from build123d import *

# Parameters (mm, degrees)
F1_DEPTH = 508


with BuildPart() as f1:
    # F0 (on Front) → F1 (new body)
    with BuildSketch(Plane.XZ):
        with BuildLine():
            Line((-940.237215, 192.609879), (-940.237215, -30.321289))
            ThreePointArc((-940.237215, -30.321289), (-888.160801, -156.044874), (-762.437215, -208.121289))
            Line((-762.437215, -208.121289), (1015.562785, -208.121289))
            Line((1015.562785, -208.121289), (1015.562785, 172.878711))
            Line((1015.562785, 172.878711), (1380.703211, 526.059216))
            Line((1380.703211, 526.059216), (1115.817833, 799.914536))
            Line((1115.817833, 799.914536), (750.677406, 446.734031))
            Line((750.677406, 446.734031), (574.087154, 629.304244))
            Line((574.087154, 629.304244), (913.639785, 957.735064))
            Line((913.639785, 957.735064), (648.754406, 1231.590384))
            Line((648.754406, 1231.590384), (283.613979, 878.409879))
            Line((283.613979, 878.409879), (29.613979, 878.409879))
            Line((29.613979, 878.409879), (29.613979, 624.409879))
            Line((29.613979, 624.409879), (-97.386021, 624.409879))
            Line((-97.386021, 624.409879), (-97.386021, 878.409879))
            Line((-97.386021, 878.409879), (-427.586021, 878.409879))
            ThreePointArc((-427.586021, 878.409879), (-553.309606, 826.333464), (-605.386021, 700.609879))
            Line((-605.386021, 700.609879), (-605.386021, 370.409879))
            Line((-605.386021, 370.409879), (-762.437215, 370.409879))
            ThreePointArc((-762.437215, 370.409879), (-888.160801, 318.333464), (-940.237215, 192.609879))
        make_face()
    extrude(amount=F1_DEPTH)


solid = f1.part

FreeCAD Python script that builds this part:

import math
import FreeCAD as App
import Part
import Sketcher
from FreeCAD import Vector
Q = App.Units.Quantity

doc = App.newDocument("Part")
body = doc.addObject("PartDesign::Body", "Body")

# Sketch on XZ plane
sketch1 = body.newObject("Sketcher::SketchObject", "Sketch")
sketch1.AttachmentSupport = (doc.getObject("XZ_Plane"), [""])
sketch1.MapMode = "FlatFace"
sketch1.addGeometry([
    Part.LineSegment(Vector(-940.237215, 192.609879, 0), Vector(-940.237215, -30.321289, 0)),  # 0
    Part.ArcOfCircle(Part.Circle(Vector(-762.437214, -30.321288, 0), Vector(0, 0, 1), 177.800001), math.radians(-180), math.radians(-90)),  # 1
    Part.LineSegment(Vector(-762.437215, -208.121289, 0), Vector(1015.562785, -208.121289, 0)),  # 2
    Part.LineSegment(Vector(1015.562785, -208.121289, 0), Vector(1015.562785, 172.878711, 0)),  # 3
    Part.LineSegment(Vector(1015.562785, 172.878711, 0), Vector(1380.703211, 526.059216, 0)),  # 4
    Part.LineSegment(Vector(1380.703211, 526.059216, 0), Vector(1115.817833, 799.914536, 0)),  # 5
    Part.LineSegment(Vector(1115.817833, 799.914536, 0), Vector(750.677406, 446.734031, 0)),  # 6
    Part.LineSegment(Vector(750.677406, 446.734031, 0), Vector(574.087154, 629.304244, 0)),  # 7
    Part.LineSegment(Vector(574.087154, 629.304244, 0), Vector(913.639785, 957.735064, 0)),  # 8
    Part.LineSegment(Vector(913.639785, 957.735064, 0), Vector(648.754406, 1231.590384, 0)),  # 9
    Part.LineSegment(Vector(648.754406, 1231.590384, 0), Vector(283.613979, 878.409879, 0)),  # 10
    Part.LineSegment(Vector(283.613979, 878.409879, 0), Vector(29.613979, 878.409879, 0)),  # 11
    Part.LineSegment(Vector(29.613979, 878.409879, 0), Vector(29.613979, 624.409879, 0)),  # 12
    Part.LineSegment(Vector(29.613979, 624.409879, 0), Vector(-97.386021, 624.409879, 0)),  # 13
    Part.LineSegment(Vector(-97.386021, 624.409879, 0), Vector(-97.386021, 878.409879, 0)),  # 14
    Part.LineSegment(Vector(-97.386021, 878.409879, 0), Vector(-427.586021, 878.409879, 0)),  # 15
    Part.ArcOfCircle(Part.Circle(Vector(-427.586019, 700.609877, 0), Vector(0, 0, 1), 177.800002), math.radians(90.000001), math.radians(179.999999)),  # 16
    Part.LineSegment(Vector(-605.386021, 700.609879, 0), Vector(-605.386021, 370.409879, 0)),  # 17
    Part.LineSegment(Vector(-605.386021, 370.409879, 0), Vector(-762.437215, 370.409879, 0)),  # 18
    Part.ArcOfCircle(Part.Circle(Vector(-762.437214, 192.609878, 0), Vector(0, 0, 1), 177.800001), math.radians(90), math.radians(180)),  # 19
], False)
sketch1.addConstraint([
    Sketcher.Constraint("Tangent", 0, 2, 1, 1),
    Sketcher.Constraint("Tangent", 1, 2, 2, 1),
    Sketcher.Constraint("Coincident", 2, 2, 3, 1),
    Sketcher.Constraint("Coincident", 3, 2, 4, 1),
    Sketcher.Constraint("Coincident", 4, 2, 5, 1),
    Sketcher.Constraint("Coincident", 5, 2, 6, 1),
    Sketcher.Constraint("Coincident", 6, 2, 7, 1),
    Sketcher.Constraint("Coincident", 7, 2, 8, 1),
    Sketcher.Constraint("Coincident", 8, 2, 9, 1),
    Sketcher.Constraint("Coincident", 9, 2, 10, 1),
    Sketcher.Constraint("Coincident", 10, 2, 11, 1),
    Sketcher.Constraint("Coincident", 11, 2, 12, 1),
    Sketcher.Constraint("Coincident", 12, 2, 13, 1),
    Sketcher.Constraint("Coincident", 13, 2, 14, 1),
    Sketcher.Constraint("Coincident", 14, 2, 15, 1),
    Sketcher.Constraint("Tangent", 15, 2, 16, 1),
    Sketcher.Constraint("Tangent", 16, 2, 17, 1),
    Sketcher.Constraint("Coincident", 17, 2, 18, 1),
    Sketcher.Constraint("Tangent", 18, 2, 19, 1),
    Sketcher.Constraint("Tangent", 19, 2, 0, 1),
    Sketcher.Constraint("Vertical", 0),
    Sketcher.Constraint("Horizontal", 2),
    Sketcher.Constraint("Vertical", 3),
    Sketcher.Constraint("Horizontal", 11),
    Sketcher.Constraint("Vertical", 12),
    Sketcher.Constraint("Horizontal", 13),
    Sketcher.Constraint("Vertical", 14),
    Sketcher.Constraint("Horizontal", 15),
    Sketcher.Constraint("Vertical", 17),
    Sketcher.Constraint("Horizontal", 18),
    Sketcher.Constraint("Equal", 1, 16),
    Sketcher.Constraint("Equal", 16, 19),
    Sketcher.Constraint("Perpendicular", 4, 5),
    Sketcher.Constraint("Perpendicular", 5, 6),
    Sketcher.Constraint("Perpendicular", 6, 7),
    Sketcher.Constraint("Perpendicular", 7, 8),
    Sketcher.Constraint("Perpendicular", 8, 9),
    Sketcher.Constraint("Perpendicular", 9, 10),
    Sketcher.Constraint("Horizontal", 11, 2, 14, 2),
    Sketcher.Constraint("Equal", 11, 12),
    Sketcher.Constraint("Equal", 15, 17),
    Sketcher.Constraint("Equal", 4, 6),
    Sketcher.Constraint("Equal", 5, 9),
    Sketcher.Constraint("Equal", 6, 10),
    Sketcher.Constraint("Radius", 1, Q("7 in")),
    Sketcher.Constraint("DistanceX", 2, 1, 2, 2, Q("70 in")),
    Sketcher.Constraint("DistanceX", 11, 2, 11, 1, Q("10 in")),
    Sketcher.Constraint("DistanceX", 13, 2, 13, 1, Q("5 in")),
    Sketcher.Constraint("DistanceX", 15, 2, 15, 1, Q("13 in")),
    Sketcher.Constraint("DistanceY", 3, 1, 3, 2, Q("15 in")),
    Sketcher.Constraint("Distance", 4, Q("20 in")),
    Sketcher.Constraint("Distance", 5, Q("15 in")),
    Sketcher.Constraint("Distance", 7, Q("10 in")),
    Sketcher.Constraint("DistanceY", 0, 2, 0, 1, Q("222.931168 mm")),
    Sketcher.Constraint("DistanceX", 8, 2, 3, 2, Q("101.923 mm")),
    Sketcher.Constraint("DistanceY", 1, 3, -1, 1, Q("30.321288 mm")),
    Sketcher.Constraint("DistanceX", 16, 3, -1, 1, Q("427.586019 mm")),
])
pad1 = body.newObject("PartDesign::Pad", "Pad")
pad1.Profile = sketch1
pad1.Length = Q("20 in")

doc.recompute()
